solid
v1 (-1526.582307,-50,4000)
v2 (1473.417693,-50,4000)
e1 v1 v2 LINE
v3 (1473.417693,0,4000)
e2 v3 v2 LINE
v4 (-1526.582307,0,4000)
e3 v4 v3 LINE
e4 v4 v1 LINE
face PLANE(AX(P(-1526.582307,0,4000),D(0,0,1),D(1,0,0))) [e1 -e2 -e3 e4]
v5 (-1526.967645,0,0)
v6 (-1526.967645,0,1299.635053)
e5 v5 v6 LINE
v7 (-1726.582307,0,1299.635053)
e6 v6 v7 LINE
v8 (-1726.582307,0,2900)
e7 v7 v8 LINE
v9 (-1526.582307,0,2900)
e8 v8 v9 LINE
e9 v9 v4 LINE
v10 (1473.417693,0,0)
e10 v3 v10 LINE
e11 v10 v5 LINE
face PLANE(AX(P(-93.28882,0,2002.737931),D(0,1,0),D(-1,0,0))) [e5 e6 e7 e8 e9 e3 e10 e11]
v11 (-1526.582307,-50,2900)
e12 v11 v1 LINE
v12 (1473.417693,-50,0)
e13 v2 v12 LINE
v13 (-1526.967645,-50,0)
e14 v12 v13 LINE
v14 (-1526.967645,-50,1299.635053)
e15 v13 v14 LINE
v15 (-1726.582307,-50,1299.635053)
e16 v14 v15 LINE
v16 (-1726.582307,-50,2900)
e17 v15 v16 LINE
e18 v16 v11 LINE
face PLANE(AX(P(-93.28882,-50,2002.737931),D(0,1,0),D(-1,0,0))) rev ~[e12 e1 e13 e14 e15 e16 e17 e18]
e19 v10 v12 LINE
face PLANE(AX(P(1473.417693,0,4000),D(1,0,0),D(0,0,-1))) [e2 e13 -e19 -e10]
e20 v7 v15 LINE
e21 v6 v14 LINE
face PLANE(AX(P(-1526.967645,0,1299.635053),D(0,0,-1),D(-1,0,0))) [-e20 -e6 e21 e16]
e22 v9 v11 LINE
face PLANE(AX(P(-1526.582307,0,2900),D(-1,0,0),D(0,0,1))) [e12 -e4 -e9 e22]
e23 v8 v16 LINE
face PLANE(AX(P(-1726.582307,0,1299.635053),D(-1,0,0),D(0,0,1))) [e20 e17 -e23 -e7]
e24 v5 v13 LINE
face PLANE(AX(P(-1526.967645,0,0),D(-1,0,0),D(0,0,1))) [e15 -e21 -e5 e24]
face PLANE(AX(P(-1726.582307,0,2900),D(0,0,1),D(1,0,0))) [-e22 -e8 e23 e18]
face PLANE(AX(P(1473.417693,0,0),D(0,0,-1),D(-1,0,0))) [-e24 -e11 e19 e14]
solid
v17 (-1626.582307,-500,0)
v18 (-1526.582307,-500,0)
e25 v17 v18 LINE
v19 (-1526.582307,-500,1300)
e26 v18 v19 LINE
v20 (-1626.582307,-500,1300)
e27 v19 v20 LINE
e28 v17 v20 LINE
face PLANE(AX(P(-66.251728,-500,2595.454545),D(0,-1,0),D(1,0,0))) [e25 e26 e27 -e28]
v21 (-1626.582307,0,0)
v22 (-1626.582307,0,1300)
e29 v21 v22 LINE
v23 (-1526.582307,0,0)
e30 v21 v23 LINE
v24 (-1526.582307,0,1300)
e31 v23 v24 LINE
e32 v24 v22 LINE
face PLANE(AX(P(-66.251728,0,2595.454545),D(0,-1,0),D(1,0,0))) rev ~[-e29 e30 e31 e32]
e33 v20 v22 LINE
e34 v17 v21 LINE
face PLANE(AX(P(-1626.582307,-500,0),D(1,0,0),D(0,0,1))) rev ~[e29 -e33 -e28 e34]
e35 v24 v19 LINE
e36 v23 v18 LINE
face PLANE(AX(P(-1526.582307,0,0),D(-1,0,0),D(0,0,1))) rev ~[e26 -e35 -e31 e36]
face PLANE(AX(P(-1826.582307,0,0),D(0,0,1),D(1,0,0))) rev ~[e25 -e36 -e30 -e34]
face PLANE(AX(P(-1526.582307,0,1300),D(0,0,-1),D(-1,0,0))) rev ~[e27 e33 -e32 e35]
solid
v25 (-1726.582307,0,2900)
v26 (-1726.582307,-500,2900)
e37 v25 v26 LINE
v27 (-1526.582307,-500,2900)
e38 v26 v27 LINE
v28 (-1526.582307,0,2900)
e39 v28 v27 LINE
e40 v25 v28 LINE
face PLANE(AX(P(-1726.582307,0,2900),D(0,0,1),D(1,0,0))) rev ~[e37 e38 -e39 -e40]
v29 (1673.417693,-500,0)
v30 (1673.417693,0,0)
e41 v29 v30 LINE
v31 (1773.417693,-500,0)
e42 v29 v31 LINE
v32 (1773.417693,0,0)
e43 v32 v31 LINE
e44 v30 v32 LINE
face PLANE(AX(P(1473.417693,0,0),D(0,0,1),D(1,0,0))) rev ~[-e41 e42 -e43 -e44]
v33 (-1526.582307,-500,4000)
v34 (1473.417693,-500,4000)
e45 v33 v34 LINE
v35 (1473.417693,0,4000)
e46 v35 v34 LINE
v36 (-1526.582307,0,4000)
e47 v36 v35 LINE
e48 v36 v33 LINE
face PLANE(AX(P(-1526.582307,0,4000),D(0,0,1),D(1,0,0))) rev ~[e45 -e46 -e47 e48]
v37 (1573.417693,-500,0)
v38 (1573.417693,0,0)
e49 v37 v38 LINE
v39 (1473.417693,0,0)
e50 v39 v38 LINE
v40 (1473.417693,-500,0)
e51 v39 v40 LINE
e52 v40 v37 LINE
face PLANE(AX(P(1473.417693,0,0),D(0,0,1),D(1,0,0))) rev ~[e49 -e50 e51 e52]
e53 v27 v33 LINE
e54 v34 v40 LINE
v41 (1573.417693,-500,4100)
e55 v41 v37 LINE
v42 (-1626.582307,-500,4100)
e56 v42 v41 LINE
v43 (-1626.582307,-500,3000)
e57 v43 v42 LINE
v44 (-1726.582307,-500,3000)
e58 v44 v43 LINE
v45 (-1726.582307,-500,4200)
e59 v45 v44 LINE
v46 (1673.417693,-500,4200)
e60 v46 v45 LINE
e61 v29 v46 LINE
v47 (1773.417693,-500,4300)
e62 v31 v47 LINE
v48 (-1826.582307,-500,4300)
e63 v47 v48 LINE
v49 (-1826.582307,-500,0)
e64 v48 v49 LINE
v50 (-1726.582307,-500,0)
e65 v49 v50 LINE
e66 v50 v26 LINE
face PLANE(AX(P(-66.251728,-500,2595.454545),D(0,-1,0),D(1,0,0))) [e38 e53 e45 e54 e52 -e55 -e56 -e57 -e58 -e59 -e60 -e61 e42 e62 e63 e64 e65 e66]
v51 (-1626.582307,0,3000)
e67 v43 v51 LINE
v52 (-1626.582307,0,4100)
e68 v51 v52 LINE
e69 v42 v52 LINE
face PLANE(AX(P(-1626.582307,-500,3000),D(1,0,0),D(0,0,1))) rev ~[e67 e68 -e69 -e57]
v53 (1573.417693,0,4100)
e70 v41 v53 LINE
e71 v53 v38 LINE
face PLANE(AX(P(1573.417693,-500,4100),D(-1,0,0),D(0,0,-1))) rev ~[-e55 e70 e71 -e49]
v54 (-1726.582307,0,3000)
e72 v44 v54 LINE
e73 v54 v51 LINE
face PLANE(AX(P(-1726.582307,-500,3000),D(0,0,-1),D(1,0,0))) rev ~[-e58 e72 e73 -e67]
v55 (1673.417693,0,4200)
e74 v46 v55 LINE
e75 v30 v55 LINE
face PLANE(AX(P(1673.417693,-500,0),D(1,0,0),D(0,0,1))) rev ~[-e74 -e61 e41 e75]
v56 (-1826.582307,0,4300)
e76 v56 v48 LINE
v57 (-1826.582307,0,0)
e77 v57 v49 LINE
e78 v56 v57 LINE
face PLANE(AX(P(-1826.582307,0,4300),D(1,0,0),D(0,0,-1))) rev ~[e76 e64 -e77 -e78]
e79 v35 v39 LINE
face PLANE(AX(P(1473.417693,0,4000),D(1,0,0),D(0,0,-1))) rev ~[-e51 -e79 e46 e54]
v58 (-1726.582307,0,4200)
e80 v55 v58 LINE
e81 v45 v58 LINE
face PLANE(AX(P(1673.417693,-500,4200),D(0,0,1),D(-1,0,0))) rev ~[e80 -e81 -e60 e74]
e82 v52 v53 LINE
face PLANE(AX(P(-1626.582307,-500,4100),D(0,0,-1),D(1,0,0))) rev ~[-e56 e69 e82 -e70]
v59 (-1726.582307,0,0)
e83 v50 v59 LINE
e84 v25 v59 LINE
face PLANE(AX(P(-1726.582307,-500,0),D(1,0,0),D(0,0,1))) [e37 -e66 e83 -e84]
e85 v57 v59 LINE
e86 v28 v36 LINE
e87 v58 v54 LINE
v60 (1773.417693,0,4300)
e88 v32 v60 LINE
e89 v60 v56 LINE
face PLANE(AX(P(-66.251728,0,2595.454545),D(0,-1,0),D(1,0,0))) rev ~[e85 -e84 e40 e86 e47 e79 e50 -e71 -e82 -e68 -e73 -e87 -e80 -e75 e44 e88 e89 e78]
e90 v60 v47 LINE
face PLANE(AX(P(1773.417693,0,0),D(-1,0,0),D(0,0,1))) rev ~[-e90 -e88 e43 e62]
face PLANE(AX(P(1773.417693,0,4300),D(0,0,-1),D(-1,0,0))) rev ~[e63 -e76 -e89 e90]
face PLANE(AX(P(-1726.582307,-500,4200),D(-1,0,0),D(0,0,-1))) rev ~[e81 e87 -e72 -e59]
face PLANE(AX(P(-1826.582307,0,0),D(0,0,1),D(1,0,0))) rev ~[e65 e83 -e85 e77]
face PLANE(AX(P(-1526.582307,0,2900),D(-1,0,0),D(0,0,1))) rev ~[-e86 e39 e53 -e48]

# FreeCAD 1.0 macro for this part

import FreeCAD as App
import Part
import Sketcher

V = App.Vector
Q = App.Units.Quantity


def add_polygon(sketch, points):
    """Adds a closed chain of lines whose ends are joined by coincident constraints."""
    first, n = sketch.GeometryCount, len(points)
    for a, b in zip(points, points[1:] + points[:1]):
        sketch.addGeometry(Part.LineSegment(App.Vector(*a, 0), App.Vector(*b, 0)), False)
    for i in range(n):
        sketch.addConstraint(Sketcher.Constraint("Coincident", first + i, 2, first + (i + 1) % n, 1))

doc = App.newDocument("Part")
body = doc.addObject("PartDesign::Body", "Body")
body.AllowCompound = True

# Sketch on XZ plane
sketch1 = body.newObject("Sketcher::SketchObject", "Sketch")
sketch1.AttachmentSupport = (doc.getObject("XZ_Plane"), [""])
sketch1.MapMode = "FlatFace"
add_polygon(sketch1, [(-1826.582307, 4300), (-1826.582307, 0), (-1526.582307, 0), (-1526.582307, 1300), (-1726.582307, 1300), (-1726.582307, 2900), (-1526.582307, 2900), (-1526.582307, 4000), (1473.417693, 4000), (1473.417693, 0), (1773.417693, 0), (1773.417693, 4300)])  # lines 0-11
sketch1.addConstraint(Sketcher.Constraint("Vertical", 0))
sketch1.addConstraint(Sketcher.Constraint("Horizontal", 1))
sketch1.addConstraint(Sketcher.Constraint("Vertical", 2))
sketch1.addConstraint(Sketcher.Constraint("Horizontal", 3))
sketch1.addConstraint(Sketcher.Constraint("Vertical", 4))
sketch1.addConstraint(Sketcher.Constraint("Horizontal", 5))
sketch1.addConstraint(Sketcher.Constraint("Vertical", 6))
sketch1.addConstraint(Sketcher.Constraint("Horizontal", 7))
sketch1.addConstraint(Sketcher.Constraint("Vertical", 8))
sketch1.addConstraint(Sketcher.Constraint("Horizontal", 9))
sketch1.addConstraint(Sketcher.Constraint("Vertical", 10))
sketch1.addConstraint(Sketcher.Constraint("Horizontal", 11))
sketch1.addConstraint(Sketcher.Constraint("PointOnObject", 0, 2, -1))
sketch1.addConstraint(Sketcher.Constraint("PointOnObject", 8, 2, -1))
sketch1.addConstraint(Sketcher.Constraint("Vertical", 2, 2, 5, 2))
sketch1.addConstraint(Sketcher.Constraint("Equal", 1, 9))
sketch1.addConstraint(Sketcher.Constraint("DistanceX", 1, 1, 1, 2, Q("300 mm")))
sketch1.addConstraint(Sketcher.Constraint("DistanceX", 3, 2, 3, 1, Q("200 mm")))
sketch1.addConstraint(Sketcher.Constraint("DistanceX", 7, 1, 7, 2, Q("3000 mm")))
sketch1.addConstraint(Sketcher.Constraint("DistanceY", 0, 2, 0, 1, Q("4300 mm")))
sketch1.addConstraint(Sketcher.Constraint("DistanceY", 2, 1, 2, 2, Q("1300 mm")))
sketch1.addConstraint(Sketcher.Constraint("DistanceY", 4, 1, 4, 2, Q("1600 mm")))
sketch1.addConstraint(Sketcher.Constraint("DistanceY", 6, 1, 6, 2, Q("1100 mm")))
sketch1.addConstraint(Sketcher.Constraint("DistanceX", 0, 2, -1, 1, Q("1826.582307 mm")))
pad1 = body.newObject("PartDesign::Pad", "Pad")
pad1.Profile = sketch1
pad1.Length = 500

# Sketch on XZ plane
sketch2 = body.newObject("Sketcher::SketchObject", "Sketch001")
sketch2.AttachmentSupport = (doc.getObject("XZ_Plane"), [""])
sketch2.MapMode = "FlatFace"
sketch2.AttachmentOffset = App.Placement(V(0, 0, 500), App.Rotation())
add_polygon(sketch2, [(-1726.582307, 4200), (-1726.582307, 3000), (-1626.582307, 3000), (-1626.582307, 4100), (1573.417693, 4100), (1573.417693, 0), (1673.417693, 0), (1673.417693, 4200)])  # lines 0-7
add_polygon(sketch2, [(-1726.582307, 1300), (-1726.582307, 0), (-1626.582307, 0), (-1626.582307, 1300)])  # lines 8-11
sketch2.addConstraint(Sketcher.Constraint("Vertical", 0))
sketch2.addConstraint(Sketcher.Constraint("Horizontal", 1))
sketch2.addConstraint(Sketcher.Constraint("Vertical", 2))
sketch2.addConstraint(Sketcher.Constraint("Horizontal", 3))
sketch2.addConstraint(Sketcher.Constraint("Vertical", 4))
sketch2.addConstraint(Sketcher.Constraint("Horizontal", 5))
sketch2.addConstraint(Sketcher.Constraint("Vertical", 6))
sketch2.addConstraint(Sketcher.Constraint("Horizontal", 7))
sketch2.addConstraint(Sketcher.Constraint("Vertical", 8))
sketch2.addConstraint(Sketcher.Constraint("Horizontal", 9))
sketch2.addConstraint(Sketcher.Constraint("Vertical", 10))
sketch2.addConstraint(Sketcher.Constraint("Horizontal", 11))
sketch2.addConstraint(Sketcher.Constraint("PointOnObject", 4, 2, -1))
sketch2.addConstraint(Sketcher.Constraint("PointOnObject", 8, 2, -1))
sketch2.addConstraint(Sketcher.Constraint("Vertical", 7, 2, 8, 2))
sketch2.addConstraint(Sketcher.Constraint("Vertical", 2, 2, 9, 2))
sketch2.addConstraint(Sketcher.Constraint("Equal", 1, 5))
sketch2.addConstraint(Sketcher.Constraint("DistanceX", 1, 1, 1, 2, Q("100 mm")))
sketch2.addConstraint(Sketcher.Constraint("DistanceX", 3, 1, 3, 2, Q("3200 mm")))
sketch2.addConstraint(Sketcher.Constraint("DistanceY", 0, 2, 0, 1, Q("1200 mm")))
sketch2.addConstraint(Sketcher.Constraint("DistanceY", 2, 1, 2, 2, Q("1100 mm")))
sketch2.addConstraint(Sketcher.Constraint("DistanceY", 4, 2, 4, 1, Q("4100 mm")))
sketch2.addConstraint(Sketcher.Constraint("DistanceY", 8, 2, 8, 1, Q("1300 mm")))
sketch2.addConstraint(Sketcher.Constraint("DistanceX", 0, 2, -1, 1, Q("1726.582307 mm")))
pocket1 = body.newObject("PartDesign::Pocket", "Pocket")
pocket1.Profile = sketch2
pocket1.Type = "ThroughAll"
body2 = doc.addObject("PartDesign::Body", "Body001")

# Sketch on XZ plane
sketch3 = body2.newObject("Sketcher::SketchObject", "Sketch002")
sketch3.AttachmentSupport = (doc.getObject("XZ_Plane001"), [""])
sketch3.MapMode = "FlatFace"
add_polygon(sketch3, [(1473.417693, 0), (-1526.967645, 0), (-1526.967645, 1299.635053), (-1726.582307, 1299.635053), (-1726.582307, 2900), (-1526.582307, 2900), (-1526.582307, 4000), (1473.417693, 4000)])  # lines 0-7
sketch3.addConstraint(Sketcher.Constraint("Horizontal", 0))
sketch3.addConstraint(Sketcher.Constraint("Vertical", 1))
sketch3.addConstraint(Sketcher.Constraint("Horizontal", 2))
sketch3.addConstraint(Sketcher.Constraint("Vertical", 3))
sketch3.addConstraint(Sketcher.Constraint("Horizontal", 4))
sketch3.addConstraint(Sketcher.Constraint("Vertical", 5))
sketch3.addConstraint(Sketcher.Constraint("Horizontal", 6))
sketch3.addConstraint(Sketcher.Constraint("Vertical", 7))
sketch3.addConstraint(Sketcher.Constraint("PointOnObject", 0, 2, -1))
sketch3.addConstraint(Sketcher.Constraint("DistanceX", 4, 1, 4, 2, Q("200 mm")))
sketch3.addConstraint(Sketcher.Constraint("DistanceX", 6, 1, 6, 2, Q("3000 mm")))
sketch3.addConstraint(Sketcher.Constraint("DistanceY", 5, 1, 5, 2, Q("1100 mm")))
sketch3.addConstraint(Sketcher.Constraint("DistanceY", 7, 2, 7, 1, Q("4000 mm")))
sketch3.addConstraint(Sketcher.Constraint("DistanceX", 0, 2, 0, 1, Q("3000.385338 mm")))
sketch3.addConstraint(Sketcher.Constraint("DistanceY", 1, 1, 1, 2, Q("1299.635053 mm")))
sketch3.addConstraint(Sketcher.Constraint("DistanceX", 0, 2, -1, 1, Q("1526.967645 mm")))
pad2 = body2.newObject("PartDesign::Pad", "Pad001")
pad2.Profile = sketch3
pad2.Length = 50

doc.recompute()
